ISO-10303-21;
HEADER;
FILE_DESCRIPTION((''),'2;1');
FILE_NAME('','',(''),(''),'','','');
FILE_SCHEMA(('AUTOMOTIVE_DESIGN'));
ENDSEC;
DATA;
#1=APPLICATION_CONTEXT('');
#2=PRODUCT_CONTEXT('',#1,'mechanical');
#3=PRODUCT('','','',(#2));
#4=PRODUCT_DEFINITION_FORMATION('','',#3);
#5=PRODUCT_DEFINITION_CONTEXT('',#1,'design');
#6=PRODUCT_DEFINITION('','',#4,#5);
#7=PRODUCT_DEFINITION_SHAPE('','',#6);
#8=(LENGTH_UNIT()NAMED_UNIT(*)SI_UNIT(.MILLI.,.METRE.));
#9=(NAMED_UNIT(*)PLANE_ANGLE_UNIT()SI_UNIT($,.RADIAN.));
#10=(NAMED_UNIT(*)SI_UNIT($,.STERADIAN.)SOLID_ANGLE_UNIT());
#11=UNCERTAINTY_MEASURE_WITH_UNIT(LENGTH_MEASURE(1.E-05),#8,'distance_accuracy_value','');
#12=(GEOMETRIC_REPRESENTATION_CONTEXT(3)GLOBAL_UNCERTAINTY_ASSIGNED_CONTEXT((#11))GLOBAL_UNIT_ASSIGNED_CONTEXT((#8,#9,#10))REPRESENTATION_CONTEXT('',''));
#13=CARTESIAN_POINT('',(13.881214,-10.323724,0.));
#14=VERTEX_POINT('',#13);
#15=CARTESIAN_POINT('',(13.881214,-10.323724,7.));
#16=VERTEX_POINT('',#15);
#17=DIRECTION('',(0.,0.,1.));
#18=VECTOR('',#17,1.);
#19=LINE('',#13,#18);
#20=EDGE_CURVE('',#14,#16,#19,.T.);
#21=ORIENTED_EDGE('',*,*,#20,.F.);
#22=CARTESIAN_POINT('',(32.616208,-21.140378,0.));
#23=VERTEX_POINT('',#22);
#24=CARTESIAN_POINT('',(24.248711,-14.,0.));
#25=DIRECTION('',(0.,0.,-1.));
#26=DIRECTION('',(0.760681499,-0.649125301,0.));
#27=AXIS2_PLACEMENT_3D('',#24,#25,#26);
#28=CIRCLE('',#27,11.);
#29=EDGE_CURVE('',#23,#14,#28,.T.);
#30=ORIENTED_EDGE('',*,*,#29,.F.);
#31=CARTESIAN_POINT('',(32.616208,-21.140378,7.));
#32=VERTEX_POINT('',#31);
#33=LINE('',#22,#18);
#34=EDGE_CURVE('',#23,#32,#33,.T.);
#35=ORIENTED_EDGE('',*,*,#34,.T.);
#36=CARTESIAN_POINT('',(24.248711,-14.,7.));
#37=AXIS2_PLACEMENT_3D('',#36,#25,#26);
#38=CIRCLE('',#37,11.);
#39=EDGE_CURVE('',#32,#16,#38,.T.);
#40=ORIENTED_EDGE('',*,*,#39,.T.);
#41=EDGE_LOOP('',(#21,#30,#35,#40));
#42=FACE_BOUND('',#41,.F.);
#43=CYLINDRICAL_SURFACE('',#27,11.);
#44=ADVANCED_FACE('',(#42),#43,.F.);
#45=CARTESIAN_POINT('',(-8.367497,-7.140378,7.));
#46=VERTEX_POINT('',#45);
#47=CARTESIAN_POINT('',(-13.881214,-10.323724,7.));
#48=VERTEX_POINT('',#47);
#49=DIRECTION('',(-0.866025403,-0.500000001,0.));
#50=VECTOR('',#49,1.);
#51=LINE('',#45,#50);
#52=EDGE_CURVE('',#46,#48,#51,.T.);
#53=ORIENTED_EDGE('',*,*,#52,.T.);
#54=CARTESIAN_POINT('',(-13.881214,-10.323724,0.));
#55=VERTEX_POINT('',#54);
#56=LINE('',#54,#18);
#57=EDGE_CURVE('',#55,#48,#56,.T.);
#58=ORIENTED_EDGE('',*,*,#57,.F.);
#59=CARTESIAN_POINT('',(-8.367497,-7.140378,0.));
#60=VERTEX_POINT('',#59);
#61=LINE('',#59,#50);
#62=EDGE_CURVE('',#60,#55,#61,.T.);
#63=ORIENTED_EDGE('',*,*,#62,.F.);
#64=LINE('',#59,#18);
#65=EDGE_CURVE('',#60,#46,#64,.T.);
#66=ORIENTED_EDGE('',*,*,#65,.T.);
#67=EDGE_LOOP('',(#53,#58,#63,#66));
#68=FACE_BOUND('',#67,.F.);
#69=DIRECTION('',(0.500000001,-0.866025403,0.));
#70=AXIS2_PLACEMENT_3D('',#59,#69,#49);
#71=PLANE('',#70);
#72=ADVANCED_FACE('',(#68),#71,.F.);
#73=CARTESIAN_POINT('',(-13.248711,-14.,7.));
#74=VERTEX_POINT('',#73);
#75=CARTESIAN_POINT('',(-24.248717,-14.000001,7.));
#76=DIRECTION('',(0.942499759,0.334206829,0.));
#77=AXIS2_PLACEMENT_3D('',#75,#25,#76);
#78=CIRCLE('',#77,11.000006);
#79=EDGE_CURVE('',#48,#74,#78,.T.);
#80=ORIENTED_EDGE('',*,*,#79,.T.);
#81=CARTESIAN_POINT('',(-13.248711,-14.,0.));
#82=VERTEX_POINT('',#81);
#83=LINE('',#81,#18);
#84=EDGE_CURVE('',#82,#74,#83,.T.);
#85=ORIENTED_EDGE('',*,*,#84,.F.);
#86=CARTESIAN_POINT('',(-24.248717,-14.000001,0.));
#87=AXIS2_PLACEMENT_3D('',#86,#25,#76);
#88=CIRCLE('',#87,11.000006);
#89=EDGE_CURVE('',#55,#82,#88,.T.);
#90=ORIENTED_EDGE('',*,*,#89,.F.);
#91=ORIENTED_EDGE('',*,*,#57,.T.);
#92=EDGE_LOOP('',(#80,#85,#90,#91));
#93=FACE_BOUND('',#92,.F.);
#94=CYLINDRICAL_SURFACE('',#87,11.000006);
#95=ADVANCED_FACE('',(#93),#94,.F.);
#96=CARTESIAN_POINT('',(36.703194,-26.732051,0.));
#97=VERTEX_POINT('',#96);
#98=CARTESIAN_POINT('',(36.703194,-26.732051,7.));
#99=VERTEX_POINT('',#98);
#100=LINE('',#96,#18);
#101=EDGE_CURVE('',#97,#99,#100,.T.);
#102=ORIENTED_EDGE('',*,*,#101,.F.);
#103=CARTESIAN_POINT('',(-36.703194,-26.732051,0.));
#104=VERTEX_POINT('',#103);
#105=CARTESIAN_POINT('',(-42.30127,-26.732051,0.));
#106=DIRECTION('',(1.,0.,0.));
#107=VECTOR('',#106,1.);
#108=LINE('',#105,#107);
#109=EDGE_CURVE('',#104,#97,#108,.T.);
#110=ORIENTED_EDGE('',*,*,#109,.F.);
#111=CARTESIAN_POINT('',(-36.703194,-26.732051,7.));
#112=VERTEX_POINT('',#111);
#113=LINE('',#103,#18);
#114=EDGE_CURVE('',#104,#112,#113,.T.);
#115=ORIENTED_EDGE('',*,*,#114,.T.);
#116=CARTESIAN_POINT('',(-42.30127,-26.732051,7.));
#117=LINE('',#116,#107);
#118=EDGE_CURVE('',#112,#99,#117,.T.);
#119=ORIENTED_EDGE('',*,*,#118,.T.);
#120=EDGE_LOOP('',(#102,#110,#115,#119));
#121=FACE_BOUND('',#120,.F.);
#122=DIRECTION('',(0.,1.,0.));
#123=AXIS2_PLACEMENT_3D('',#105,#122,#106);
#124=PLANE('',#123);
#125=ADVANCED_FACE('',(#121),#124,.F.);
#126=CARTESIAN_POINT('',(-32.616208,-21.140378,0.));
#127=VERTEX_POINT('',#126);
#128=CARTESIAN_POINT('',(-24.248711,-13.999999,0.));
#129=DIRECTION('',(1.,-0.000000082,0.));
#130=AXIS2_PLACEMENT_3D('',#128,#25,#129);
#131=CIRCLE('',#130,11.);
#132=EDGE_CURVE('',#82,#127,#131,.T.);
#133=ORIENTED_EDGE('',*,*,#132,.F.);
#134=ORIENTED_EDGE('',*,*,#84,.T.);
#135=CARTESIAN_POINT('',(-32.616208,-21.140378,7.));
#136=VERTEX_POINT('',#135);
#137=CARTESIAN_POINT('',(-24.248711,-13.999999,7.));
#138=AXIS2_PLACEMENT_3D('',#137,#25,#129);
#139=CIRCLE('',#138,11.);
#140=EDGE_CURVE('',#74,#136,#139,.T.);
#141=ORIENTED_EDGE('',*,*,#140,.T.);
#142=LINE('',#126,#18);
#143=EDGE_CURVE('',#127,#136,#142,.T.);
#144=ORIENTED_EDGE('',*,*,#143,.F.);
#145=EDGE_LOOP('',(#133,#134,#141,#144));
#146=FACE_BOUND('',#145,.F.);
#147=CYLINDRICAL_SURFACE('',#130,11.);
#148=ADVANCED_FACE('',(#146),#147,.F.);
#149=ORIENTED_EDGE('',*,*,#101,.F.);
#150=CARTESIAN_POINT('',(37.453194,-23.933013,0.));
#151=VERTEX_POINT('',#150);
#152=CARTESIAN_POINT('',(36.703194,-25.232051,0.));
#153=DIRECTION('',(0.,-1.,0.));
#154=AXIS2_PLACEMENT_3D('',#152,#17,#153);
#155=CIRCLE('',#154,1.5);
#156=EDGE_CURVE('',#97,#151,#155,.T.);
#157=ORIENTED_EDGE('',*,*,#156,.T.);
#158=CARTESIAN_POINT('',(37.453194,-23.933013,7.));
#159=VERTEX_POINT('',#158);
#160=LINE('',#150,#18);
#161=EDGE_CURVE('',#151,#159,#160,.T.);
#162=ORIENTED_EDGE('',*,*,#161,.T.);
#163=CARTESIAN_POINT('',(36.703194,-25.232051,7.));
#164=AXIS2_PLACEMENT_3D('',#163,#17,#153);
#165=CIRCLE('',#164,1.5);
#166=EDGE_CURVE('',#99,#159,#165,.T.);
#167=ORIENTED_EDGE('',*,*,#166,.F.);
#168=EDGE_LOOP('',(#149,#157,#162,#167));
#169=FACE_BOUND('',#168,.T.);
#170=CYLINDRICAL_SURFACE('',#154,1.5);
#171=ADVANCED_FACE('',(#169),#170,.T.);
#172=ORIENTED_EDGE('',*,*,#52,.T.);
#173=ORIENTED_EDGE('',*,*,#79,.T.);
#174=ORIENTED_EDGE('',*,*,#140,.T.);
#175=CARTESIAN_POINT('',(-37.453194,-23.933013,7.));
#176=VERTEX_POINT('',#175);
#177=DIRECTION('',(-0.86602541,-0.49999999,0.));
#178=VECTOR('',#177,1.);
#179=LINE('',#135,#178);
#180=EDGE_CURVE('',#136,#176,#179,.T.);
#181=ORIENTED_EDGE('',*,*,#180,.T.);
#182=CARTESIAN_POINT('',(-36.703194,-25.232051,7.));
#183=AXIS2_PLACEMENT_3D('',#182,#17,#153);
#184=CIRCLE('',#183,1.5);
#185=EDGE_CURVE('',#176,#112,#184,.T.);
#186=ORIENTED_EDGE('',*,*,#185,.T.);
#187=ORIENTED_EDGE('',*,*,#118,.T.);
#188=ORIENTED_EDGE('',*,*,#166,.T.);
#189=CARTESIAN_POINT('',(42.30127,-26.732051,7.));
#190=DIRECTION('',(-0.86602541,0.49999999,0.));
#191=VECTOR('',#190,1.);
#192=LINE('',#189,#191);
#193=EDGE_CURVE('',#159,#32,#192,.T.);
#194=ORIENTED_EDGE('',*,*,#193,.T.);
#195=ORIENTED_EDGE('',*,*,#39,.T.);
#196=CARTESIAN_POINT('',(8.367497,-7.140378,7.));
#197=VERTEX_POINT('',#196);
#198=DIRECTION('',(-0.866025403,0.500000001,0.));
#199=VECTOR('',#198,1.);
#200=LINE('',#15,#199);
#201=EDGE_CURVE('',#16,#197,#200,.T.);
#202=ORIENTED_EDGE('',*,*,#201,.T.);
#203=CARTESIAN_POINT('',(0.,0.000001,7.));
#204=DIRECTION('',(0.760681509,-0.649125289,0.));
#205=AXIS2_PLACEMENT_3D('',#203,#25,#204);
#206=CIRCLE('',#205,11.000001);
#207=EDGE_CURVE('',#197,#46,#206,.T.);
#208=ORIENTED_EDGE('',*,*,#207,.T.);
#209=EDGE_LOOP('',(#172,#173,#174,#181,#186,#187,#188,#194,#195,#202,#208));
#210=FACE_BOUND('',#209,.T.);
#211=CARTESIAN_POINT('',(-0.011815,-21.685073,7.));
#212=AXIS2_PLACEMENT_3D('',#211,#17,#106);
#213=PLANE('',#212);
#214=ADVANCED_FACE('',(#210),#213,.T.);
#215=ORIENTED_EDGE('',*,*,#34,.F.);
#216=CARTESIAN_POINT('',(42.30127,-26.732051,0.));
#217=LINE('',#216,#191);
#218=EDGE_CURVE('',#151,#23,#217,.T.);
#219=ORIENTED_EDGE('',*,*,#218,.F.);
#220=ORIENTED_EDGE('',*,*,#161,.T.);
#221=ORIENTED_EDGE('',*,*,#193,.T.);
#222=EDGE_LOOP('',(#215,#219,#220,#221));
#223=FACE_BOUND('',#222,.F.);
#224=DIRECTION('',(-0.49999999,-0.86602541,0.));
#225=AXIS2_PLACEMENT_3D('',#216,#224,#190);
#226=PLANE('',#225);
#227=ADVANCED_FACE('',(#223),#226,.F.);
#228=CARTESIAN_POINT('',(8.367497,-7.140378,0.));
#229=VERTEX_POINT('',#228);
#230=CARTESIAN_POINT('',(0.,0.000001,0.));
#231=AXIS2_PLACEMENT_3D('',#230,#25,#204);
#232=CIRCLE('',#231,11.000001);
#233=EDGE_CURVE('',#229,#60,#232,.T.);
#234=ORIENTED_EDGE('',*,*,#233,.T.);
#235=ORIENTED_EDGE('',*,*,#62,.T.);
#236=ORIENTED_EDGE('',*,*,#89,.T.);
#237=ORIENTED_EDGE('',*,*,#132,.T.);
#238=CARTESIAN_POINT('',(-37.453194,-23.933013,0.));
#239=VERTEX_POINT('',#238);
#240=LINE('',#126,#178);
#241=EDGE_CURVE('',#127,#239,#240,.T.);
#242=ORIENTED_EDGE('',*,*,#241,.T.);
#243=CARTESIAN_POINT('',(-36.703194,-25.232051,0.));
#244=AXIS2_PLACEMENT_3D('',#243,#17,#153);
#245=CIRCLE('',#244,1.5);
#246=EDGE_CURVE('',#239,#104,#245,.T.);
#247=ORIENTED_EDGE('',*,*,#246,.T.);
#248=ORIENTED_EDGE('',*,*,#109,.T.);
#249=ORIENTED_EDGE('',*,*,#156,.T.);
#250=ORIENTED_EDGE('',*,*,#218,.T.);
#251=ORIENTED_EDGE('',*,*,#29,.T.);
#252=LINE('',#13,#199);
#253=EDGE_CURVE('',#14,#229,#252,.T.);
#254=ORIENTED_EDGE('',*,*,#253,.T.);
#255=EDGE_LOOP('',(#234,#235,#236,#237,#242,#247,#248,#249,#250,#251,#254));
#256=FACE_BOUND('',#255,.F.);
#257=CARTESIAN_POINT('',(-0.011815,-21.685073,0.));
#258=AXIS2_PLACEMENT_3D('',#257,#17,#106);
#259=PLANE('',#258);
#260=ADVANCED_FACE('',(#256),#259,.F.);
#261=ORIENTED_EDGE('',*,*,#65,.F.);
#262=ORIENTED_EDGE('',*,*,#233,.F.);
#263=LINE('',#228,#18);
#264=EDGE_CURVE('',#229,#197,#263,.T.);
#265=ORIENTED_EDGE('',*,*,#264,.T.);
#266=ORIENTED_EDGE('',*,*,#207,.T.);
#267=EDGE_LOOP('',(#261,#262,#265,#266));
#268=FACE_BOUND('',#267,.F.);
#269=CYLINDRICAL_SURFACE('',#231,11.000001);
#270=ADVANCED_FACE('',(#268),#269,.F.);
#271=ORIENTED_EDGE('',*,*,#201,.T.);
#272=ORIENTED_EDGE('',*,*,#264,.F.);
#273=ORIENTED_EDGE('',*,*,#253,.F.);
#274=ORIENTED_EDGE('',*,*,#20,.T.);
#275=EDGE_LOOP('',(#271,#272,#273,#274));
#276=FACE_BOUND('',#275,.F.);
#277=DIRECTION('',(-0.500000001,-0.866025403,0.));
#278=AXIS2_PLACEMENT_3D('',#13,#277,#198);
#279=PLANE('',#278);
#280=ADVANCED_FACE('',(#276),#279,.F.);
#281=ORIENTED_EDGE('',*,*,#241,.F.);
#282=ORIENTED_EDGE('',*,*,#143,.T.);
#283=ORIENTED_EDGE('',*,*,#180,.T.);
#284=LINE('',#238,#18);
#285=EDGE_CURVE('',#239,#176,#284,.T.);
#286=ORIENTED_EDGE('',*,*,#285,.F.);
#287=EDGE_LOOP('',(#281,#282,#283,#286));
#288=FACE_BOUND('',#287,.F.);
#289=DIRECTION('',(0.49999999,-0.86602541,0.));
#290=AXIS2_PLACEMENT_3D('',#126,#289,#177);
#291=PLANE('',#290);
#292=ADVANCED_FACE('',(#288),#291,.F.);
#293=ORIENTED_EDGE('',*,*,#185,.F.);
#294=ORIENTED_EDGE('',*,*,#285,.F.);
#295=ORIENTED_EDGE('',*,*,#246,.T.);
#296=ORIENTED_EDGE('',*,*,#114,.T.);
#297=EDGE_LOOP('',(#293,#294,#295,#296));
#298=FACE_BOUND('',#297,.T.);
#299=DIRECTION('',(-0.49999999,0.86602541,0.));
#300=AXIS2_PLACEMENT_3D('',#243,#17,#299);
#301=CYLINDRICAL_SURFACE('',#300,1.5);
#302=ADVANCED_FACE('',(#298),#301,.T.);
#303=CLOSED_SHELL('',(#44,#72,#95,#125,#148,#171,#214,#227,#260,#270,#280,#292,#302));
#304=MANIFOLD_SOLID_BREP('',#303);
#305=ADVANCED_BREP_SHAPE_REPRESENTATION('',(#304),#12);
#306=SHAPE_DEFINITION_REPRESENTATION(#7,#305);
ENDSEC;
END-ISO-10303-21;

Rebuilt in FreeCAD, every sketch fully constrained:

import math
import FreeCAD as App
import Part
import Sketcher
Q = App.Units.Quantity


def edges_at(feature, points):
    """Names of the edges that pass closest to the given points."""
    edges = feature.Shape.Edges
    near = lambda p: min(range(len(edges)), key=lambda i: edges[i].distToShape(Part.Vertex(*p))[0])
    return sorted({f"Edge{near(p) + 1}" for p in points})

doc = App.newDocument("Part")
body = doc.addObject("PartDesign::Body", "Body")

# Sketch on XY plane
sketch1 = body.newObject("Sketcher::SketchObject", "Sketch")
sketch1.AttachmentSupport = (doc.getObject("XY_Plane"), [""])
sketch1.MapMode = "FlatFace"
sketch1.addGeometry([
    Part.ArcOfCircle(Part.Circle(App.Vector(0, 0.000001, 0), App.Vector(0, 0, 1), 11.000001), math.radians(-139.524315), math.radians(-40.475685)),  # 0
    Part.LineSegment(App.Vector(-8.367497, -7.140378, 0), App.Vector(-13.881214, -10.323724, 0)),  # 1
    Part.ArcOfCircle(Part.Circle(App.Vector(-24.248717, -14.000001, 0), App.Vector(0, 0, 1), 11.000006), math.radians(0.000006), math.radians(19.524313)),  # 2
    Part.ArcOfCircle(Part.Circle(App.Vector(-24.248711, -13.999999, 0), App.Vector(0, 0, 1), 11), math.radians(-139.524312), math.radians(-0.000005)),  # 3
    Part.LineSegment(App.Vector(-32.616208, -21.140378, 0), App.Vector(-42.30127, -26.732051, 0)),  # 4
    Part.LineSegment(App.Vector(-42.30127, -26.732051, 0), App.Vector(42.30127, -26.732051, 0)),  # 5
    Part.LineSegment(App.Vector(42.30127, -26.732051, 0), App.Vector(32.616208, -21.140378, 0)),  # 6
    Part.ArcOfCircle(Part.Circle(App.Vector(24.248711, -14, 0), App.Vector(0, 0, 1), 11), math.radians(160.475685), math.radians(319.524314)),  # 7
    Part.LineSegment(App.Vector(13.881214, -10.323724, 0), App.Vector(8.367497, -7.140378, 0)),  # 8
], False)
sketch1.addConstraint([
    Sketcher.Constraint("Coincident", 0, 1, 1, 1),
    Sketcher.Constraint("Coincident", 1, 2, 2, 2),
    Sketcher.Constraint("Tangent", 2, 1, 3, 2),
    Sketcher.Constraint("Coincident", 3, 1, 4, 1),
    Sketcher.Constraint("Coincident", 4, 2, 5, 1),
    Sketcher.Constraint("Coincident", 5, 2, 6, 1),
    Sketcher.Constraint("Coincident", 6, 2, 7, 2),
    Sketcher.Constraint("Coincident", 7, 1, 8, 1),
    Sketcher.Constraint("Coincident", 8, 2, 0, 2),
    Sketcher.Constraint("Horizontal", 5),
    Sketcher.Constraint("Coincident", 0, 3, -1, 1),
    Sketcher.Constraint("Equal", 0, 3),
    Sketcher.Constraint("Equal", 3, 7),
    Sketcher.Constraint("Symmetric", 2, 3, 7, 3, -2),
    Sketcher.Constraint("Symmetric", 3, 1, 6, 2, -2),
    Sketcher.Constraint("Parallel", 1, 4),
    Sketcher.Constraint("Parallel", 6, 8),
    Sketcher.Constraint("Horizontal", 7, 3, 2, 1),
    Sketcher.Constraint("Horizontal", 1, 2, 7, 1),
    Sketcher.Constraint("Horizontal", 0, 1, 8, 2),
    Sketcher.Constraint("Radius", 0, Q("11.000001 mm")),
    Sketcher.Constraint("Angle", 1, Q("-150 deg")),
    Sketcher.Constraint("DistanceY", 2, 3, -1, 1, Q("14.000001 mm")),
    Sketcher.Constraint("DistanceY", 3, 1, 0, 1, Q("14 mm")),
    Sketcher.Constraint("DistanceX", 5, 1, 5, 2, Q("84.60254 mm")),
    Sketcher.Constraint("Distance", 1, Q("6.366692 mm")),
    Sketcher.Constraint("DistanceX", 3, 3, -1, 1, Q("24.248711 mm")),
])
pad1 = body.newObject("PartDesign::Pad", "Pad")
pad1.Profile = sketch1
pad1.Length = 7
doc.recompute()

fillet = body.newObject("PartDesign::Fillet", "Fillet")
fillet.Base = (pad1, edges_at(pad1, [(-42.301, -26.732, 3.5), (42.301, -26.732, 3.5)]))
fillet.Radius = 1.5

doc.recompute()
